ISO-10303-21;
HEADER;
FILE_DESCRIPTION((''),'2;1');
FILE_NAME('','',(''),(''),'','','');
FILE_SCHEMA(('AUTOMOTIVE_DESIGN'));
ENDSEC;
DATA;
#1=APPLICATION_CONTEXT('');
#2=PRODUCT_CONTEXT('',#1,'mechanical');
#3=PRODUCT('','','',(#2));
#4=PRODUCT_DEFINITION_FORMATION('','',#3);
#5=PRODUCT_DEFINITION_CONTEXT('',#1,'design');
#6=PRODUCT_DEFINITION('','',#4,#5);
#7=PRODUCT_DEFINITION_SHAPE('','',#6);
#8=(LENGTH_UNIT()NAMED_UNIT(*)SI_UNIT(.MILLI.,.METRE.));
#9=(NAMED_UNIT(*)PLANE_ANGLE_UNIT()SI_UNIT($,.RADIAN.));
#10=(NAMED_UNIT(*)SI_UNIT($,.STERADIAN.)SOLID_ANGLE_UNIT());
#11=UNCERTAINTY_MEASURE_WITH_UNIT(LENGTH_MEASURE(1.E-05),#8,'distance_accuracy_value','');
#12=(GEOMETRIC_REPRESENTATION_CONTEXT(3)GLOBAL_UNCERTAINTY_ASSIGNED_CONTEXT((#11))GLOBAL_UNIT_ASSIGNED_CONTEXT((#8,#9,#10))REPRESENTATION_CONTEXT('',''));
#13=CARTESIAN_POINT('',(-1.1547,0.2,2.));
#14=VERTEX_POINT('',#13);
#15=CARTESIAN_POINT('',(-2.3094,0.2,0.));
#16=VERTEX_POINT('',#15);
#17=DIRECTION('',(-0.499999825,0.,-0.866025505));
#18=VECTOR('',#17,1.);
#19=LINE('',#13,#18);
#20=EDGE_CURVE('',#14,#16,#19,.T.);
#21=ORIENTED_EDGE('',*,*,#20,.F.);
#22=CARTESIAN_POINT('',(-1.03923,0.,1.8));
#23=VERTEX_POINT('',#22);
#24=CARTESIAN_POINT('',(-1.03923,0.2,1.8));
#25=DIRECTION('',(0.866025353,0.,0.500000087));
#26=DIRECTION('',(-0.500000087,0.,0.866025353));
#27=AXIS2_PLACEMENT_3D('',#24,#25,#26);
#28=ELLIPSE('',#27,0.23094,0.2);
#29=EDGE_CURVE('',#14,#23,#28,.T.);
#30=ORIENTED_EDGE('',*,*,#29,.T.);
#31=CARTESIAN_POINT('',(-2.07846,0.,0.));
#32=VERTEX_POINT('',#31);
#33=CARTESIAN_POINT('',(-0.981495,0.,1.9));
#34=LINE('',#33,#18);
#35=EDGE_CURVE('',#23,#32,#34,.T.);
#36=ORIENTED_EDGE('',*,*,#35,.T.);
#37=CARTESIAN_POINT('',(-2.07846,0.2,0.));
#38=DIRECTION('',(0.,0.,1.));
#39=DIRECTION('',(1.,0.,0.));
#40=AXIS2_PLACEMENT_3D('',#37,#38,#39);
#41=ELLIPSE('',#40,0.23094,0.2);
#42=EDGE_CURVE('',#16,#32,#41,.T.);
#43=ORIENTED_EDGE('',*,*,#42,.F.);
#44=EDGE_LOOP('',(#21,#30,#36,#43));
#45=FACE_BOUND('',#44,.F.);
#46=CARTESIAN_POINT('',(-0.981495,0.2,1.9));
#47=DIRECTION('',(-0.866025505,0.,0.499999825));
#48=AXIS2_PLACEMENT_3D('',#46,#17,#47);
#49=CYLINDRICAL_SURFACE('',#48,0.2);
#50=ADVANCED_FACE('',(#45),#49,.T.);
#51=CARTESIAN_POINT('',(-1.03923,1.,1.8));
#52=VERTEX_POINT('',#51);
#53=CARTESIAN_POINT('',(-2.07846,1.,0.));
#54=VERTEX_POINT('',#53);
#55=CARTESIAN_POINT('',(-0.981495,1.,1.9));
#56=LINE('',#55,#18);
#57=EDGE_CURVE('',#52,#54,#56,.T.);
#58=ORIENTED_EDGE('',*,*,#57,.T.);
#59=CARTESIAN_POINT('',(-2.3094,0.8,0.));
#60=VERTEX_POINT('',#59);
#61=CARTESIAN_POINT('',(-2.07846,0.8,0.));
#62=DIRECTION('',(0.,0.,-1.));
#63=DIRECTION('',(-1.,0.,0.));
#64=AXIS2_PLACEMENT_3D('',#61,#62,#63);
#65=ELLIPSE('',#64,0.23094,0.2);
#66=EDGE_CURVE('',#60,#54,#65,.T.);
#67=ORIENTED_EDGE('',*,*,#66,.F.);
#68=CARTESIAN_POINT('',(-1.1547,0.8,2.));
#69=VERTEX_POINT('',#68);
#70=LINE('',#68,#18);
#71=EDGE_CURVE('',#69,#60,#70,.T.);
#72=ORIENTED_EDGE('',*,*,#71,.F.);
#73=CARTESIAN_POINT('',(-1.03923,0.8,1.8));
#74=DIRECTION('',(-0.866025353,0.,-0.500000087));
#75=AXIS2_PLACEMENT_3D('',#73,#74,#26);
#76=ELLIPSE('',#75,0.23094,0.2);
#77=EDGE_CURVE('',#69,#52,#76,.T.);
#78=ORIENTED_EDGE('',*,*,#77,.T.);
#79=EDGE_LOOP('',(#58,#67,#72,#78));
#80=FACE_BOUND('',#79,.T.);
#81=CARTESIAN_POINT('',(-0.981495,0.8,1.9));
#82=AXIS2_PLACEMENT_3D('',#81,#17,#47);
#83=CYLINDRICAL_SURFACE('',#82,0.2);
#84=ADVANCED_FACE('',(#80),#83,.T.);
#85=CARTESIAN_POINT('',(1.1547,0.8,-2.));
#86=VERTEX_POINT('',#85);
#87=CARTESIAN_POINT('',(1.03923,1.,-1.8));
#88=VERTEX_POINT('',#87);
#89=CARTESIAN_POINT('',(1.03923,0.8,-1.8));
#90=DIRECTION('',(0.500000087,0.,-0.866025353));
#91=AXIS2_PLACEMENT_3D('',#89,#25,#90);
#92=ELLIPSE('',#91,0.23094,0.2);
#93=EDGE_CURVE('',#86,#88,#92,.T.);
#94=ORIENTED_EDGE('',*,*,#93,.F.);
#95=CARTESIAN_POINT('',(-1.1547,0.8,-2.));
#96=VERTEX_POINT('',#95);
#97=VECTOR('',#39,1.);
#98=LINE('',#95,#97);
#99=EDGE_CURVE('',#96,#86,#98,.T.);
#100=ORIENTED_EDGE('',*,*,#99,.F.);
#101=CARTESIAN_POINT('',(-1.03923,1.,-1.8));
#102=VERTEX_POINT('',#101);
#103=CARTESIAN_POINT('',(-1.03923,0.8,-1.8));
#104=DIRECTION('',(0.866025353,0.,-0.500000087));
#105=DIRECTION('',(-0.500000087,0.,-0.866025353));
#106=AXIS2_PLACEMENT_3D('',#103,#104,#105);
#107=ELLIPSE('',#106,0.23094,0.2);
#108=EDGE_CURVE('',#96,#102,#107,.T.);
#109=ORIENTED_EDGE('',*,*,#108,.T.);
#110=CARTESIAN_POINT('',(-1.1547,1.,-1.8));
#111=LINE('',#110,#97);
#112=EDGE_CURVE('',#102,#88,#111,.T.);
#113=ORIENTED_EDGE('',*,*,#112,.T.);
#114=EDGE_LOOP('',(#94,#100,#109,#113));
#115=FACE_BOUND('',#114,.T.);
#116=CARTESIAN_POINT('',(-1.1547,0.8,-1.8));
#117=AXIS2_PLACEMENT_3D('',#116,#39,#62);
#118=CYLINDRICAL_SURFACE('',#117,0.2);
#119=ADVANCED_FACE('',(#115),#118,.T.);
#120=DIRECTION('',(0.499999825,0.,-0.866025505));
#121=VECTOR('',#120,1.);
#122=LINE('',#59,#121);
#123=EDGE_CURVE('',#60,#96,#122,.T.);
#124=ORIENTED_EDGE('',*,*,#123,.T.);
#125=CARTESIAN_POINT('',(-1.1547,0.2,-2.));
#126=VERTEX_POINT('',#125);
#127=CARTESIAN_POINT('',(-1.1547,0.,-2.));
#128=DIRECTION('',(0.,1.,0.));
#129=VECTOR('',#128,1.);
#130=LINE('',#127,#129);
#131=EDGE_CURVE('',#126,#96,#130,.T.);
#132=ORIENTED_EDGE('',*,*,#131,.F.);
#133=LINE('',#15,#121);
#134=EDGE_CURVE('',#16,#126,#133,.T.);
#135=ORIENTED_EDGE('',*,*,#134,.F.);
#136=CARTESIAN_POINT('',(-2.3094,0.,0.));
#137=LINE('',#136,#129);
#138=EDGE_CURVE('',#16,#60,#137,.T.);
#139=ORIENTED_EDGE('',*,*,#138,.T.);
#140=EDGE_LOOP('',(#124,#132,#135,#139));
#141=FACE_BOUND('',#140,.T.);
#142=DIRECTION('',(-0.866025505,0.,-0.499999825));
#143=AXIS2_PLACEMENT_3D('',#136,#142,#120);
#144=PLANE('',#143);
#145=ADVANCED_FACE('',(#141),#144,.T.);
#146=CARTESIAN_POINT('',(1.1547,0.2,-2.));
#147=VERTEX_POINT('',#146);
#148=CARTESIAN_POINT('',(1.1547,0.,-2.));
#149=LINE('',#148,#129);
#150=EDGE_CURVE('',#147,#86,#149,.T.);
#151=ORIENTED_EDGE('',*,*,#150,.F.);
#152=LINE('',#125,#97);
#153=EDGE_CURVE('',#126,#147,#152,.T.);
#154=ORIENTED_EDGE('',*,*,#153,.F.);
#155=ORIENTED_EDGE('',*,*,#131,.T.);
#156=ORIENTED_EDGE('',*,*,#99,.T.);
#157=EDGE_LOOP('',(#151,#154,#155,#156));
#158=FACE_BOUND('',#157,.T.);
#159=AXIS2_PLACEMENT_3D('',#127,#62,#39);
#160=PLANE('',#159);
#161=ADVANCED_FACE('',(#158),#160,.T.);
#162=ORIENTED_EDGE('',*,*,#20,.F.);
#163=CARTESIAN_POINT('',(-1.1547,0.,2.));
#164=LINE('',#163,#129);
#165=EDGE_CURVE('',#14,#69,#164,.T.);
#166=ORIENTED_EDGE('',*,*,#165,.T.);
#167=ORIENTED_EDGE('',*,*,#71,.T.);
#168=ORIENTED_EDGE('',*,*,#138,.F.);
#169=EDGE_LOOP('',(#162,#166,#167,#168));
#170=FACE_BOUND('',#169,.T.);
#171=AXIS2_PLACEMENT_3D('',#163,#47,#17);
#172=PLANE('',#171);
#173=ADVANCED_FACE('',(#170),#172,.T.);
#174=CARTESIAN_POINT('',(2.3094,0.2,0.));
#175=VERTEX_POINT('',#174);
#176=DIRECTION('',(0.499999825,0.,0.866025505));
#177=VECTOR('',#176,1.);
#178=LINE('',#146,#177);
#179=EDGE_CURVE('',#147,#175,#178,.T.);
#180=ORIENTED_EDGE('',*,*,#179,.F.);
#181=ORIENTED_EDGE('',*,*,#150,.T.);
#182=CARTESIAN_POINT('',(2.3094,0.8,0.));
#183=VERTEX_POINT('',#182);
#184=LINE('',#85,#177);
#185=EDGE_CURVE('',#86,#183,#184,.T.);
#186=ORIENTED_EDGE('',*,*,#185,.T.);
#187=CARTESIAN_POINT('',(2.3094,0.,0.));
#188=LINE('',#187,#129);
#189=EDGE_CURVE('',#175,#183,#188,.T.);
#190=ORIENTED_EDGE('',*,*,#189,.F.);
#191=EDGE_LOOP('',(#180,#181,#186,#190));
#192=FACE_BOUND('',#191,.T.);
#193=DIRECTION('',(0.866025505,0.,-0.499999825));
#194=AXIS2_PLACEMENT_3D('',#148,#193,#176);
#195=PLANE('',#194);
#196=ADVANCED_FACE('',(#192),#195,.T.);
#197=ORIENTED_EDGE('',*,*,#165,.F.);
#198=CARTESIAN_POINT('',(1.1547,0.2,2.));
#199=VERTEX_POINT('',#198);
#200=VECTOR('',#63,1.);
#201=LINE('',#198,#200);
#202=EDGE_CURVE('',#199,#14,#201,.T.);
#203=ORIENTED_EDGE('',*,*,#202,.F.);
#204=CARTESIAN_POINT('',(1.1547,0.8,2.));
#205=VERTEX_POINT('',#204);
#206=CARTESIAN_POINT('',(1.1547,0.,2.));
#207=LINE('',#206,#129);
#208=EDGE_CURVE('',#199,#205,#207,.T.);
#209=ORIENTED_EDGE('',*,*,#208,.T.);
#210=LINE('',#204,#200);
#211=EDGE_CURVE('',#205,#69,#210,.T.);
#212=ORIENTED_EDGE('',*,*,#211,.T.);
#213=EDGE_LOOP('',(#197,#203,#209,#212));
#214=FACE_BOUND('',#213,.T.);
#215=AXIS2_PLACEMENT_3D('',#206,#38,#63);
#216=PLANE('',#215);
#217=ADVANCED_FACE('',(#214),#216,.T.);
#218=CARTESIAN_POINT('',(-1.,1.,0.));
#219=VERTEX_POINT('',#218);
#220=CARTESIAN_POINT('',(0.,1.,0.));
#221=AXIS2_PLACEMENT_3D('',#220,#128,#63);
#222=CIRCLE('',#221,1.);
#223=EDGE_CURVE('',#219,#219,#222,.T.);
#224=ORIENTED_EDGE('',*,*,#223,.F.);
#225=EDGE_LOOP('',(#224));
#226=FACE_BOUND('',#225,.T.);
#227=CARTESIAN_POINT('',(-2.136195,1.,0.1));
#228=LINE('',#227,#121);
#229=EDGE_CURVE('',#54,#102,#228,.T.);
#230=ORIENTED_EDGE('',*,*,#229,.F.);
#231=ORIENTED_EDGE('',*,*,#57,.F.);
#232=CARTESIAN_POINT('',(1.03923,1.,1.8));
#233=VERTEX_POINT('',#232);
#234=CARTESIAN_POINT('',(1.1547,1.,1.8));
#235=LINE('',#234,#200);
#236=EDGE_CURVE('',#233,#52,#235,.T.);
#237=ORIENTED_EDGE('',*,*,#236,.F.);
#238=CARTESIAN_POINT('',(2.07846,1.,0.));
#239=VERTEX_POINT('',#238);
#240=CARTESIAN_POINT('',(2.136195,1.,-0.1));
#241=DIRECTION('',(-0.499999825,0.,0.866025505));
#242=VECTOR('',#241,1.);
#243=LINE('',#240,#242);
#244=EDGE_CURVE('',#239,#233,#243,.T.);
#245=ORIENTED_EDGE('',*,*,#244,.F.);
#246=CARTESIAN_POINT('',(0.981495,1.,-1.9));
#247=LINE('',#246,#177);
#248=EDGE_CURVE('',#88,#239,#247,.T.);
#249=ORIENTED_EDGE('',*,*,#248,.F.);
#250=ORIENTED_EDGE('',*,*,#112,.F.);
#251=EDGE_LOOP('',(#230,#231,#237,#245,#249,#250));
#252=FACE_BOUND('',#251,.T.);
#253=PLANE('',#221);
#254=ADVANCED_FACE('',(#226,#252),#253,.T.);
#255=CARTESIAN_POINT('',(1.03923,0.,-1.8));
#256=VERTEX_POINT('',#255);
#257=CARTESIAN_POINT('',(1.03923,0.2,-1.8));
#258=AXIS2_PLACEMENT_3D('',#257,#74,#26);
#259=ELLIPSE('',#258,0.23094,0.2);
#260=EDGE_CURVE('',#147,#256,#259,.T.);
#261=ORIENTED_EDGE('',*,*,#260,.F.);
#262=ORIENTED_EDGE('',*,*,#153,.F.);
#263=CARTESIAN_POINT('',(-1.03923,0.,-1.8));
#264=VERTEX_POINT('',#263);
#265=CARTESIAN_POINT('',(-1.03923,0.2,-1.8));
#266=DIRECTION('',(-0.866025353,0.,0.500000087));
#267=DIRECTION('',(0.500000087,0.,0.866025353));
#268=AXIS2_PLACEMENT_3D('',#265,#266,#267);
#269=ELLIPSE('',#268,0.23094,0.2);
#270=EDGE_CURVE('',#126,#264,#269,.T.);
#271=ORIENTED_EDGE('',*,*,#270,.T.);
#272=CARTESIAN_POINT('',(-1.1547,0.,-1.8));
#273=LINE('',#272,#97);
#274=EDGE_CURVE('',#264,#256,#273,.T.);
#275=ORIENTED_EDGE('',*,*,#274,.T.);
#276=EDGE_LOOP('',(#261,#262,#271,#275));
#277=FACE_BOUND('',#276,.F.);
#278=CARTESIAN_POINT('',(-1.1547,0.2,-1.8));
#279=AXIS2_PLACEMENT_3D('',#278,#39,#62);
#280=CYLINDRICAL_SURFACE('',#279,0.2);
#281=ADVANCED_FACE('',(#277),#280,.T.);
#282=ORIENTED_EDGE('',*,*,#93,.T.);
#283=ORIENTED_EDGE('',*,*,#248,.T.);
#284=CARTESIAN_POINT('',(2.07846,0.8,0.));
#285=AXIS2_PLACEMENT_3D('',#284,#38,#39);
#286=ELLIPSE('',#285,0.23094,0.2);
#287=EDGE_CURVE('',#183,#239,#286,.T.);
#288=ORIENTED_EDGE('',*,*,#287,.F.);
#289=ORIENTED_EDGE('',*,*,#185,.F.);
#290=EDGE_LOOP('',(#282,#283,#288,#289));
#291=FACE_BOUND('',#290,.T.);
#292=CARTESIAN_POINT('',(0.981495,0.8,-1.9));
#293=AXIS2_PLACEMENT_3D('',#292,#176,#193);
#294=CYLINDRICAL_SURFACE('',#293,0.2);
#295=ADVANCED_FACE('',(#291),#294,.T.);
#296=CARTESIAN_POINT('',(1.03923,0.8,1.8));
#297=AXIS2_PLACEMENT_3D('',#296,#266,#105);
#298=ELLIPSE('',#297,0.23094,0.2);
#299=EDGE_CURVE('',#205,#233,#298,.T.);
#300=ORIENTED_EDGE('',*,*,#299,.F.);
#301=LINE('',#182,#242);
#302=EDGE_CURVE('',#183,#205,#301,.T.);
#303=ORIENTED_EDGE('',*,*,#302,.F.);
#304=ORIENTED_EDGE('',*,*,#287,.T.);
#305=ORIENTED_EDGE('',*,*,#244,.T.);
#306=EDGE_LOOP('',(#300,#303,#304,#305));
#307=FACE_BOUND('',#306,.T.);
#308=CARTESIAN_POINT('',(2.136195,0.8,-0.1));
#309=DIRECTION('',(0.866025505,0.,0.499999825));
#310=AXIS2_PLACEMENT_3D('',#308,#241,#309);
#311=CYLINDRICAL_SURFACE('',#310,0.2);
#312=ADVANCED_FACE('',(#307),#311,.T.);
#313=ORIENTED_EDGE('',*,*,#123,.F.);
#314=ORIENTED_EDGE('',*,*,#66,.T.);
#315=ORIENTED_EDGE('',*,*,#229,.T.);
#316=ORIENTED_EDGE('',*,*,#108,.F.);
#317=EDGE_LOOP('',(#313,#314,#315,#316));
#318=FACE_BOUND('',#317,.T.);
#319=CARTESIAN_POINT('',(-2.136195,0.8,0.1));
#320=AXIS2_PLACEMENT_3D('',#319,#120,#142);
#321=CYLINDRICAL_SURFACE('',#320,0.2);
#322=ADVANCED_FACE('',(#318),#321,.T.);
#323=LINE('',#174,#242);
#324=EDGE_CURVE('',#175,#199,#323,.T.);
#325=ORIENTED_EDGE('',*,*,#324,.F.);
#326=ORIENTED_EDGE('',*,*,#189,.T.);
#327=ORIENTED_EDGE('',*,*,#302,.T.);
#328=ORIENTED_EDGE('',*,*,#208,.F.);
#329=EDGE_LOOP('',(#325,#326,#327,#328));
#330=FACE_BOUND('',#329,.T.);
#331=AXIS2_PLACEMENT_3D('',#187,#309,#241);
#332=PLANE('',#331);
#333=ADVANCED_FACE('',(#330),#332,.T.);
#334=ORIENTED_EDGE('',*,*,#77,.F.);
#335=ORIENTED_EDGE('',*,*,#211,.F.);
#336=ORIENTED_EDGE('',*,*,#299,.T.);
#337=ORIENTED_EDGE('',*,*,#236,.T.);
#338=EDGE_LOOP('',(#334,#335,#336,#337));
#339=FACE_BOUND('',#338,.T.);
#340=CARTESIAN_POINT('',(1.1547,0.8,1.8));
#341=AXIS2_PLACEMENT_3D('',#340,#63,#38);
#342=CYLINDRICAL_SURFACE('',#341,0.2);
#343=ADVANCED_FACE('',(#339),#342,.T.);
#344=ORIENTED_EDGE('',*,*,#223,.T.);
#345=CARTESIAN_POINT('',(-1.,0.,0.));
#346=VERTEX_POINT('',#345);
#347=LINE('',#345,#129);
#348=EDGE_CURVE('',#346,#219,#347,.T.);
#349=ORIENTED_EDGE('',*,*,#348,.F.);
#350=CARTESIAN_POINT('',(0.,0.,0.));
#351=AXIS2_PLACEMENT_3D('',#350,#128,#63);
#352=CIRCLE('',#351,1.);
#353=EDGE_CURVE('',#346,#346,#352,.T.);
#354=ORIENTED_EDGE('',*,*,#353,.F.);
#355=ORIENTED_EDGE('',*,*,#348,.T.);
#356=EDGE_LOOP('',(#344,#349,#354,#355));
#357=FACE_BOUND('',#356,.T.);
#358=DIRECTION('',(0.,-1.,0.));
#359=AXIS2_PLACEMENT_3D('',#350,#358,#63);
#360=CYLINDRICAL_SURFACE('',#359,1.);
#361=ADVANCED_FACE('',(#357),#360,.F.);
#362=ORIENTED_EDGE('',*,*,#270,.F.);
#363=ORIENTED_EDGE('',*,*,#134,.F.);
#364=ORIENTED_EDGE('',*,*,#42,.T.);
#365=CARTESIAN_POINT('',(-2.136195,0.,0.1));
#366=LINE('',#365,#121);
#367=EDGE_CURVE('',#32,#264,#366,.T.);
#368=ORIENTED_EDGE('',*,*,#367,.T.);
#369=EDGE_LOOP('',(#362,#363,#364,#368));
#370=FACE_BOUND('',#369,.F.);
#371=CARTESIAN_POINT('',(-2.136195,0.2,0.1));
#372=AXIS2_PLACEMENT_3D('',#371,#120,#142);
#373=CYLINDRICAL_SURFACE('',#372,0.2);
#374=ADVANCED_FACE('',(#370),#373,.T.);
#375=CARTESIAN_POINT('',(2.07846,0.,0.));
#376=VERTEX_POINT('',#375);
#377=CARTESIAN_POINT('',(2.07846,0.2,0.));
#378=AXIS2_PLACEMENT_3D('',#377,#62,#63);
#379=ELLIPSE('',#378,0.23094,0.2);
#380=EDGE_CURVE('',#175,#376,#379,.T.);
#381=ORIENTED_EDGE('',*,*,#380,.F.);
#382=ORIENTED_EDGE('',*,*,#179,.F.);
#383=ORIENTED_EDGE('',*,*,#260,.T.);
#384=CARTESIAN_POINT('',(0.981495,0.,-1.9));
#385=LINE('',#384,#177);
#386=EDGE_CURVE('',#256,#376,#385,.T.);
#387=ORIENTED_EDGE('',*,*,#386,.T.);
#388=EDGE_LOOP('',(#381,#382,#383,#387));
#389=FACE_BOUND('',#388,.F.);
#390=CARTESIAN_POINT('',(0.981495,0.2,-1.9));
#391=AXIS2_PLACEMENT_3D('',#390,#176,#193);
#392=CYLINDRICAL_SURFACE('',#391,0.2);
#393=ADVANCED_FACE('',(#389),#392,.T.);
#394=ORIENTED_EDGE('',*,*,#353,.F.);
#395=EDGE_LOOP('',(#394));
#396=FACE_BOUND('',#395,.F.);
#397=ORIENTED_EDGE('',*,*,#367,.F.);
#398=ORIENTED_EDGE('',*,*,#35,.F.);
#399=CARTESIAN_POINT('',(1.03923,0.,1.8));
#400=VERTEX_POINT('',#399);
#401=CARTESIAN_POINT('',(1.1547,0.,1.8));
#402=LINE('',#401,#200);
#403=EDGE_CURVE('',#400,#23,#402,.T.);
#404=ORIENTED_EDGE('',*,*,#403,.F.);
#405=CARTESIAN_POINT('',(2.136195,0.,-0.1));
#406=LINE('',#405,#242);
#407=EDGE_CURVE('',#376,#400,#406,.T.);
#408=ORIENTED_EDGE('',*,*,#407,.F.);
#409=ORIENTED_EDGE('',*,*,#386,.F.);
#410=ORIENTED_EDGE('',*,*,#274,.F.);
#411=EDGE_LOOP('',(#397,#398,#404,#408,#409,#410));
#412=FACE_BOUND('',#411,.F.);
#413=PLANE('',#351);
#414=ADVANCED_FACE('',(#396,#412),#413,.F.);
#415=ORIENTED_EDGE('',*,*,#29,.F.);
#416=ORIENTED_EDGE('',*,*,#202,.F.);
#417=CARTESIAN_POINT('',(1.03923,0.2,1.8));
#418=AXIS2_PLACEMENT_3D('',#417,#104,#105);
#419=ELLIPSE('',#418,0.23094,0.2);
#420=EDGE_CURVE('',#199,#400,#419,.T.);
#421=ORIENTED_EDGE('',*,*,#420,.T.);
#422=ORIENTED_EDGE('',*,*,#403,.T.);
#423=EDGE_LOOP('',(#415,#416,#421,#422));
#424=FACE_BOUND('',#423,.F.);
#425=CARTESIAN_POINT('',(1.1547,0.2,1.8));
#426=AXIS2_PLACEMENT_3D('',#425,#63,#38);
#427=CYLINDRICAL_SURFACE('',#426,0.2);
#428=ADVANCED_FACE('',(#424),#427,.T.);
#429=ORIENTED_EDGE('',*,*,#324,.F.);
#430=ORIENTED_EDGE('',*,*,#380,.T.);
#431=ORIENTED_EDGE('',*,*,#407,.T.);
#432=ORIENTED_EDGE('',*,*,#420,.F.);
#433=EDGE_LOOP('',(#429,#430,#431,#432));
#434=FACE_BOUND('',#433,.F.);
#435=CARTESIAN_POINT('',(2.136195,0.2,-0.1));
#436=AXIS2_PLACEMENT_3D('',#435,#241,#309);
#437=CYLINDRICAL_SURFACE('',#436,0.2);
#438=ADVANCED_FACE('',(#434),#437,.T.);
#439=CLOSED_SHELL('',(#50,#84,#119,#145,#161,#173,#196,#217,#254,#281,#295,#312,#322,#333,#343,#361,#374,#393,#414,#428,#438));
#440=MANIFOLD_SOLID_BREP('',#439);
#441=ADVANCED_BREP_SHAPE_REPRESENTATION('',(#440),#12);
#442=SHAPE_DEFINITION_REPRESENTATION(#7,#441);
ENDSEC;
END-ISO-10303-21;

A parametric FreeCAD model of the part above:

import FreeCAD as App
import Part
import Sketcher

V = App.Vector
Q = App.Units.Quantity


def edges_at(feature, points):
    """Names of the edges that pass closest to the given points."""
    edges = feature.Shape.Edges
    near = lambda p: min(range(len(edges)), key=lambda i: edges[i].distToShape(Part.Vertex(*p))[0])
    return sorted({f"Edge{near(p) + 1}" for p in points})

doc = App.newDocument("Part")
body = doc.addObject("PartDesign::Body", "Body")

sketch1 = body.newObject("Sketcher::SketchObject", "Sketch")
sketch1.AttachmentSupport = (doc.getObject("XZ_Plane"), [""])
sketch1.MapMode = "FlatFace"
sketch1.addGeometry(Part.LineSegment(V(-2.3094, 0, 0), V(-1.1547, 2, 0)), False)
sketch1.addGeometry(Part.LineSegment(V(-1.1547, 2, 0), V(1.1547, 2, 0)), False)
sketch1.addGeometry(Part.LineSegment(V(1.1547, 2, 0), V(2.3094, 0, 0)), False)
sketch1.addGeometry(Part.LineSegment(V(2.3094, 0, 0), V(1.1547, -2, 0)), False)
sketch1.addGeometry(Part.LineSegment(V(1.1547, -2, 0), V(-1.1547, -2, 0)), False)
sketch1.addGeometry(Part.LineSegment(V(-1.1547, -2, 0), V(-2.3094, 0, 0)), False)
sketch1.addGeometry(Part.Circle(V(0, 0, 0), V(0, 0, 1), 1), False)
sketch1.addConstraint(Sketcher.Constraint("Coincident", 0, 2, 1, 1))
sketch1.addConstraint(Sketcher.Constraint("Coincident", 1, 2, 2, 1))
sketch1.addConstraint(Sketcher.Constraint("Coincident", 2, 2, 3, 1))
sketch1.addConstraint(Sketcher.Constraint("Coincident", 3, 2, 4, 1))
sketch1.addConstraint(Sketcher.Constraint("Coincident", 4, 2, 5, 1))
sketch1.addConstraint(Sketcher.Constraint("Coincident", 5, 2, 0, 1))
sketch1.addConstraint(Sketcher.Constraint("Horizontal", 1))
sketch1.addConstraint(Sketcher.Constraint("Horizontal", 4))
sketch1.addConstraint(Sketcher.Constraint("Coincident", 6, 3, -1, 1))
sketch1.addConstraint(Sketcher.Constraint("Symmetric", 0, 2, 3, 2, -1, 1))
sketch1.addConstraint(Sketcher.Constraint("Symmetric", 2, 2, 5, 2, -1, 1))
sketch1.addConstraint(Sketcher.Constraint("PointOnObject", 2, 2, -1))
sketch1.addConstraint(Sketcher.Constraint("Parallel", 2, 5))
sketch1.addConstraint(Sketcher.Constraint("Vertical", 1, 2, 3, 2))
sketch1.addConstraint(Sketcher.Constraint("Diameter", 6, 2.0))
sketch1.addConstraint(Sketcher.Constraint("DistanceY", -1, 1, 0, 2, 2.0))
sketch1.addConstraint(Sketcher.Constraint("Angle", 0, Q("60 deg")))
sketch1.addConstraint(Sketcher.Constraint("DistanceX", 1, 1, 1, 2, 2.3094))
pad1 = body.newObject("PartDesign::Pad", "Pad")
pad1.Profile = sketch1
pad1.Length = 1
pad1.Reversed = True
doc.recompute()

fillet = body.newObject("PartDesign::Fillet", "Fillet")
fillet.Base = (pad1, edges_at(pad1, [
    (0, 1, 2),
    (-1.732, 1, 1),
    (-1.732, 1, -1),
    (0, 1, -2),
    (1.732, 1, -1),
    (1.732, 1, 1),
    (0, 0, 2),
    (1.732, 0, 1),
    (1.732, 0, -1),
    (0, 0, -2),
    (-1.732, 0, -1),
    (-1.732, 0, 1),
]))
fillet.Radius = 0.2

doc.recompute()
